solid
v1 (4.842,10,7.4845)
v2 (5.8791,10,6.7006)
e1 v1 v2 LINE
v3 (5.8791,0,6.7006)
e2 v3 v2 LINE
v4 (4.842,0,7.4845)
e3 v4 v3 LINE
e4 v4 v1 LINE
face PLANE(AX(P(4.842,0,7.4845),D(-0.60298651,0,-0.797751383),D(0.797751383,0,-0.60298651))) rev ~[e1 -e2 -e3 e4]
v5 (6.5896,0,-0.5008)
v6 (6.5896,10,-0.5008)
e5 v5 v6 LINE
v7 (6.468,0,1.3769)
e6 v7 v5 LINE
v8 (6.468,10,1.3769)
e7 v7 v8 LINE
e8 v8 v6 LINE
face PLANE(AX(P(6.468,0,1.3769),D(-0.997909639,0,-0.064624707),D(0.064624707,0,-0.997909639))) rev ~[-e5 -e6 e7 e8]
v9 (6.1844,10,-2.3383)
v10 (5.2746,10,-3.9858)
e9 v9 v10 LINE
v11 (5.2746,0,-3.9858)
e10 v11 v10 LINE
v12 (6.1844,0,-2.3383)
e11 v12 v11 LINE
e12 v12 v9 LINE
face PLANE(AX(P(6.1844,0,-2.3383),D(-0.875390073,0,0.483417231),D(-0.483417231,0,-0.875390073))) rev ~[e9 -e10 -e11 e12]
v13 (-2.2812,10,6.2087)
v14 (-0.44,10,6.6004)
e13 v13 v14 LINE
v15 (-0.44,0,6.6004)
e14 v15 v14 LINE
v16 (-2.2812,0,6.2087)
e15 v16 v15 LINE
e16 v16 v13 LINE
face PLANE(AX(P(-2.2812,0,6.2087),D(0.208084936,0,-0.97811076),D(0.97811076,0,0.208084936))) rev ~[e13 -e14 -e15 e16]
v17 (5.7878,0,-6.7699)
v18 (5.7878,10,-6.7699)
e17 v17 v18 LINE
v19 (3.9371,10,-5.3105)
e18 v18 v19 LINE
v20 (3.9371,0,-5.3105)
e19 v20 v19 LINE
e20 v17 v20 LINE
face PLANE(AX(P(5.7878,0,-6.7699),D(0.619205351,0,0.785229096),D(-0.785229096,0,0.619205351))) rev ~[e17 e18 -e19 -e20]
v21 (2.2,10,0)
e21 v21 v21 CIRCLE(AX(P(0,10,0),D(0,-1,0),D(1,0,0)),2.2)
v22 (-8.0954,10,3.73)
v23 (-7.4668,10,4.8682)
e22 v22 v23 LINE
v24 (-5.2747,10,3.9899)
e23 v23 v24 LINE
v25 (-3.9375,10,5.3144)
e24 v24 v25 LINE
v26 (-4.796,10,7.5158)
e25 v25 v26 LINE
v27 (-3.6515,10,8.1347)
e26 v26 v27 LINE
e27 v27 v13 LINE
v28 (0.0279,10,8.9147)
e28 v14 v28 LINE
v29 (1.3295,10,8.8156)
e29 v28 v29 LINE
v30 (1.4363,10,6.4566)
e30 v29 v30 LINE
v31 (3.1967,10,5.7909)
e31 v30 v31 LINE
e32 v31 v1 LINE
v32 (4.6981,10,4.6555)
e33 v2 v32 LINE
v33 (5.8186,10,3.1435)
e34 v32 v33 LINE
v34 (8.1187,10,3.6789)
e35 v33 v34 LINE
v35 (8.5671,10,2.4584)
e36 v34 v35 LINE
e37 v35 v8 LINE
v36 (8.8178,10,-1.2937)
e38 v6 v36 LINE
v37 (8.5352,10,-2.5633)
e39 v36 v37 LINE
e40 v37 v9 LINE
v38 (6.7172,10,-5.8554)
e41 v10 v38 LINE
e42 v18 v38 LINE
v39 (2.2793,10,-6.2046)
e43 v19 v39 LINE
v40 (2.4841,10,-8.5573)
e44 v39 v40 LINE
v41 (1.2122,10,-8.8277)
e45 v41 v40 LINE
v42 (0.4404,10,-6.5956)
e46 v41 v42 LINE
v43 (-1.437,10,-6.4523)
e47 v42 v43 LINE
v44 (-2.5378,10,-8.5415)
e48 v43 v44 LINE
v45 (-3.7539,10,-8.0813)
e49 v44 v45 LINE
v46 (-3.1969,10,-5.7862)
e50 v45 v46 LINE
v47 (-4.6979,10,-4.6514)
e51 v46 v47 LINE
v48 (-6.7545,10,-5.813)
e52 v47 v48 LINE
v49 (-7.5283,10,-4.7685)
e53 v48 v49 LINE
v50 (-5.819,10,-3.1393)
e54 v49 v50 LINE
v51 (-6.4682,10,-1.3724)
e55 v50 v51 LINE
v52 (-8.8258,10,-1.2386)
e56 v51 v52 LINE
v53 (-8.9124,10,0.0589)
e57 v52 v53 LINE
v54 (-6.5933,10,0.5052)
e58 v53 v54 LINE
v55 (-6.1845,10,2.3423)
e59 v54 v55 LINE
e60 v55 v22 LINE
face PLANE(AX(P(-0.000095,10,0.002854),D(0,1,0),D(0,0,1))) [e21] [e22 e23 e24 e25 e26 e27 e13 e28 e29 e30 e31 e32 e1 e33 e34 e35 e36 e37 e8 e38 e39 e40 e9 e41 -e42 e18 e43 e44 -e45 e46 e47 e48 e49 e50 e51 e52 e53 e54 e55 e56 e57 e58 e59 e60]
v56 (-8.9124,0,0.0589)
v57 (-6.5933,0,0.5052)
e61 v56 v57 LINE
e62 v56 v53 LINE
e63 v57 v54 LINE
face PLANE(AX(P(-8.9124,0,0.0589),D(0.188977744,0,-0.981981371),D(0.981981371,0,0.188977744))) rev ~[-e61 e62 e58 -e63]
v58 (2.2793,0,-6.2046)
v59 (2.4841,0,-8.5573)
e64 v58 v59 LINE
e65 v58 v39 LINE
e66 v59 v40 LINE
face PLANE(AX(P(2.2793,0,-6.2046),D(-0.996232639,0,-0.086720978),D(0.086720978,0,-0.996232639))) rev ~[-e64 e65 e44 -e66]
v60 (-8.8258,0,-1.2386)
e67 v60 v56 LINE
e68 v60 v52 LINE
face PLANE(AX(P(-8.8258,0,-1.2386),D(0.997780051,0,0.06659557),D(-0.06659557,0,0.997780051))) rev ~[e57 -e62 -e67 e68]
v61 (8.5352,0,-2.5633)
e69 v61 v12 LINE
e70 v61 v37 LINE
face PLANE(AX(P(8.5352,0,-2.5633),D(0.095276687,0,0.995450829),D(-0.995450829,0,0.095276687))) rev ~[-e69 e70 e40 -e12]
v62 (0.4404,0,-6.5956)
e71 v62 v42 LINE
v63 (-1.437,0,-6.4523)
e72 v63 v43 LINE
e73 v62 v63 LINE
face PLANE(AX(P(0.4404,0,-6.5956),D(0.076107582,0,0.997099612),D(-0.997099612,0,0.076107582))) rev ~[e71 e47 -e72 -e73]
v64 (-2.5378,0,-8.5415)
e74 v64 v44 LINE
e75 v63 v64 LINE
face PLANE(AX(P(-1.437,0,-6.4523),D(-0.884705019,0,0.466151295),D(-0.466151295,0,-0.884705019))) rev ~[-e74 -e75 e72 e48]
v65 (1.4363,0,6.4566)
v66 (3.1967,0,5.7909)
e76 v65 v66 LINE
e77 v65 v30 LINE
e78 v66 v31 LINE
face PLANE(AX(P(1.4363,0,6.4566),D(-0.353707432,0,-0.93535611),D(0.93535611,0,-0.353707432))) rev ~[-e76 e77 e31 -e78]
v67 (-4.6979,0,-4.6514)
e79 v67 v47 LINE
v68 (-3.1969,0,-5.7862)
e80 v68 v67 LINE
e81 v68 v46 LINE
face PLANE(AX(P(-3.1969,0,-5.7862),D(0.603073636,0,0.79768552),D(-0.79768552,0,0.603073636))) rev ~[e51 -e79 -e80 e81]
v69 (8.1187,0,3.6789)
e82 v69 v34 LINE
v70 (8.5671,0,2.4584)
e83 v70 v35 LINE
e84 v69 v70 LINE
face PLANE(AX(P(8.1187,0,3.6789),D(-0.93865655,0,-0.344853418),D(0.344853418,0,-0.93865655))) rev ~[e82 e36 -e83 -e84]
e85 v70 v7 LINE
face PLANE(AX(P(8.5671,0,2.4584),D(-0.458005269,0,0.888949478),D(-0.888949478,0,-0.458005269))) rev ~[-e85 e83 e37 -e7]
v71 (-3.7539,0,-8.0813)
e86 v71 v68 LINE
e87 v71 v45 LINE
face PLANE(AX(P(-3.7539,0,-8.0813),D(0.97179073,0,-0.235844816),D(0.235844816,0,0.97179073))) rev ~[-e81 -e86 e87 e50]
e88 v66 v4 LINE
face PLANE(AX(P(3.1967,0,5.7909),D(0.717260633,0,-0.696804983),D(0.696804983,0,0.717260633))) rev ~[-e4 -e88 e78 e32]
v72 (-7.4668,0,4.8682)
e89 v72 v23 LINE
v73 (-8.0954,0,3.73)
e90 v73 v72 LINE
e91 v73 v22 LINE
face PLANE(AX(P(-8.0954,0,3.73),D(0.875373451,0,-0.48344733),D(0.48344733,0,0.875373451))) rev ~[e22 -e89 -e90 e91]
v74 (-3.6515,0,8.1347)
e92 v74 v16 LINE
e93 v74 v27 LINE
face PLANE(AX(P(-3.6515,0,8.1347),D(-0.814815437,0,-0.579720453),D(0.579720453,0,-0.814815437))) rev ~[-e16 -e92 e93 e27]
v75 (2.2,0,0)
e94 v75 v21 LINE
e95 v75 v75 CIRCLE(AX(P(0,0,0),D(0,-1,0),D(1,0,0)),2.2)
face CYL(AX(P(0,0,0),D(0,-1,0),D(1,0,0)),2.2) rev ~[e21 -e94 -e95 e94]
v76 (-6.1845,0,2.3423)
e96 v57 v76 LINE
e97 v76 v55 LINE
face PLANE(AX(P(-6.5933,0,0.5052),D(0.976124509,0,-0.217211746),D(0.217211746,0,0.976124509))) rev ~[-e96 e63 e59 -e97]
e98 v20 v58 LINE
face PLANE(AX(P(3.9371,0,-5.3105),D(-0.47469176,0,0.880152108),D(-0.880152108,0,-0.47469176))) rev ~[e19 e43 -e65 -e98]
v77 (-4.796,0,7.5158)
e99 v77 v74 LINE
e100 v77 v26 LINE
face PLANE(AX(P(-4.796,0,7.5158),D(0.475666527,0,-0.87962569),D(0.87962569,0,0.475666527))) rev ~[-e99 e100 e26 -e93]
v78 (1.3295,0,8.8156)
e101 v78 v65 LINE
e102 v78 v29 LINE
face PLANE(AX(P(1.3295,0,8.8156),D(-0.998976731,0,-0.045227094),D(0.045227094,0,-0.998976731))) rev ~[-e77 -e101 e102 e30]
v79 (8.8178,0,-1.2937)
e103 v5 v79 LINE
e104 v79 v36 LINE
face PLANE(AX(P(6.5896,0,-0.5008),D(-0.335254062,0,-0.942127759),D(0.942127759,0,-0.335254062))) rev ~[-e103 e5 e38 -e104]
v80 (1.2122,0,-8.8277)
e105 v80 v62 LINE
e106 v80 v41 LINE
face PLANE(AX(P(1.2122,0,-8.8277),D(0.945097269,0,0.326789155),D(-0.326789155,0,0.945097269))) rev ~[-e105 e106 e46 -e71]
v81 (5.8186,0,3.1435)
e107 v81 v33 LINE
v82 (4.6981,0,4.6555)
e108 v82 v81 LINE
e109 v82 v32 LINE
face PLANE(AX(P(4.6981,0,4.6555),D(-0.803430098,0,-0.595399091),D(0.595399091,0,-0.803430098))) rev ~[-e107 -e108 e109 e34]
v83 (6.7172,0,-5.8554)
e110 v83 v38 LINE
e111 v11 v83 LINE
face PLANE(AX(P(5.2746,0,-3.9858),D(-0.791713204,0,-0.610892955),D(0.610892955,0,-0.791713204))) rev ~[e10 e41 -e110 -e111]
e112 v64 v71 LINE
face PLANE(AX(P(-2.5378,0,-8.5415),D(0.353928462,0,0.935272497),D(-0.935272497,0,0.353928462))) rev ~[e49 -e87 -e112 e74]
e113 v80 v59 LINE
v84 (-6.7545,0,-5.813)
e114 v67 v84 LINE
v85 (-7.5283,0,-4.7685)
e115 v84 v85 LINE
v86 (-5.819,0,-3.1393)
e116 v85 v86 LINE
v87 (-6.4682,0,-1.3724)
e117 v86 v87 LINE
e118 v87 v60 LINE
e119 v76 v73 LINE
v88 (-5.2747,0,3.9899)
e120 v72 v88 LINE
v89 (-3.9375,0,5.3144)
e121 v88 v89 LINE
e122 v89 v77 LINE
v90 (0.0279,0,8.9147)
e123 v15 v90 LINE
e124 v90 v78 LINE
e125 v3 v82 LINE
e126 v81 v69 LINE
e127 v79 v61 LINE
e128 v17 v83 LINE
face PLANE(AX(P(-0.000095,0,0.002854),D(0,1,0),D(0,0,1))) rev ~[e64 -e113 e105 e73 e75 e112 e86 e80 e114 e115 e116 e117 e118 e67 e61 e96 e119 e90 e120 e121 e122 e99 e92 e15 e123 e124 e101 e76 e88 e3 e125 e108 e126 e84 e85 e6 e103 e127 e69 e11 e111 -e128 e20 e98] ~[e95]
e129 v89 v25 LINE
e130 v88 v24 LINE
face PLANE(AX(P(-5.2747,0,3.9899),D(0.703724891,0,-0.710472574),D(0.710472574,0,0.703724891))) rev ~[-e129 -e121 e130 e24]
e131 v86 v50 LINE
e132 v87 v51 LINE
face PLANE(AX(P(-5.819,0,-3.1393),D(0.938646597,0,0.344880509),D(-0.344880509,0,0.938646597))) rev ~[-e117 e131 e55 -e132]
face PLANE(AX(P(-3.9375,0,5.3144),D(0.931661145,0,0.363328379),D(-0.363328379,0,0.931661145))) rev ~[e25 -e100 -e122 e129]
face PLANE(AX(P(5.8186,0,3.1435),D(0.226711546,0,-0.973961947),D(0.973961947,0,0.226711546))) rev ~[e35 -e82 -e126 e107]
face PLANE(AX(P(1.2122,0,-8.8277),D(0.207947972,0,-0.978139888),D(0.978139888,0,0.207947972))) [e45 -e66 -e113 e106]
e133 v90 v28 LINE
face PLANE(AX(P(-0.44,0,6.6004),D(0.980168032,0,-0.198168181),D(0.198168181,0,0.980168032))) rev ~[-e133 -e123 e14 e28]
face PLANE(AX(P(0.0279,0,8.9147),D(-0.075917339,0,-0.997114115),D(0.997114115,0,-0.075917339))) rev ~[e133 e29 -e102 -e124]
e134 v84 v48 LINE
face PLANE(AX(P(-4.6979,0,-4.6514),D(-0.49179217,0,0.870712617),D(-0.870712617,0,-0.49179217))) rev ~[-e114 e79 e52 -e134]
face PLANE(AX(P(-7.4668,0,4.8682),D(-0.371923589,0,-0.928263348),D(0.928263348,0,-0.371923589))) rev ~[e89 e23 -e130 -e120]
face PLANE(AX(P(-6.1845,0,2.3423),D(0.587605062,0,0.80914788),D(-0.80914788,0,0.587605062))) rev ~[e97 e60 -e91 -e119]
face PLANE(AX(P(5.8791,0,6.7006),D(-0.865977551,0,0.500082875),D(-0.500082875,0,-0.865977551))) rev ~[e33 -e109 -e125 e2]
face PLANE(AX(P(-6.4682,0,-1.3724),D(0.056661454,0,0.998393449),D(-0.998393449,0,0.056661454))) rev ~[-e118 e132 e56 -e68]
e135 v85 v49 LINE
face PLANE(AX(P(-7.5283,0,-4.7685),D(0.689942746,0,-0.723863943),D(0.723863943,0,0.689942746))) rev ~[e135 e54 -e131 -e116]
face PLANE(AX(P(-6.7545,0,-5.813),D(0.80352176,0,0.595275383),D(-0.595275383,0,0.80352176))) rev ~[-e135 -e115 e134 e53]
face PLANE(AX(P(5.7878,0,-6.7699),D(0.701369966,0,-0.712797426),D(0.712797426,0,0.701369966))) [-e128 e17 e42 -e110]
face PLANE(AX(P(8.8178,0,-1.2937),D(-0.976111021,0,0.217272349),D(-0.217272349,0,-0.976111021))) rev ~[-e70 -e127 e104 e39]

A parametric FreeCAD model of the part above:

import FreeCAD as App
import Part
import Sketcher

V = App.Vector
Q = App.Units.Quantity


def add_polygon(sketch, points):
    """Adds a closed chain of lines whose ends are joined by coincident constraints."""
    first, n = sketch.GeometryCount, len(points)
    for a, b in zip(points, points[1:] + points[:1]):
        sketch.addGeometry(Part.LineSegment(App.Vector(*a, 0), App.Vector(*b, 0)), False)
    for i in range(n):
        sketch.addConstraint(Sketcher.Constraint("Coincident", first + i, 2, first + (i + 1) % n, 1))

doc = App.newDocument("Part")
body = doc.addObject("PartDesign::Body", "Body")

# Sketch on XZ plane
sketch1 = body.newObject("Sketcher::SketchObject", "Sketch")
sketch1.AttachmentSupport = (doc.getObject("XZ_Plane"), [""])
sketch1.MapMode = "FlatFace"
add_polygon(sketch1, [(0.0279, 8.9147), (-0.44, 6.6004), (-2.2812, 6.2087), (-3.6515, 8.1347), (-4.796, 7.5158), (-3.9375, 5.3144), (-5.2747, 3.9899), (-7.4668, 4.8682), (-8.0954, 3.73), (-6.1845, 2.3423), (-6.5933, 0.5052), (-8.9124, 0.0589), (-8.8258, -1.2386), (-6.4682, -1.3724), (-5.819, -3.1393), (-7.5283, -4.7685), (-6.7545, -5.813), (-4.6979, -4.6514), (-3.1969, -5.7862), (-3.7539, -8.0813), (-2.5378, -8.5415), (-1.437, -6.4523), (0.4404, -6.5956), (1.2122, -8.8277), (2.4841, -8.5573), (2.2793, -6.2046), (3.9371, -5.3105), (5.7878, -6.7699), (6.7172, -5.8554), (5.2746, -3.9858), (6.1844, -2.3383), (8.5352, -2.5633), (8.8178, -1.2937), (6.5896, -0.5008), (6.468, 1.3769), (8.5671, 2.4584), (8.1187, 3.6789), (5.8186, 3.1435), (4.6981, 4.6555), (5.8791, 6.7006), (4.842, 7.4845), (3.1967, 5.7909), (1.4363, 6.4566), (1.3295, 8.8156)])  # lines 0-43
sketch1.addConstraint([
    Sketcher.Constraint("Distance", 15, Q("1.3 mm")),
    Sketcher.Constraint("Distance", 39, Q("1.3 mm")),
    Sketcher.Constraint("DistanceX", 36, 2, 35, 2, Q("2.3 mm")),
    Sketcher.Constraint("DistanceX", 0, 2, -1, 1, Q("0.44 mm")),
    Sketcher.Constraint("DistanceY", -1, 1, 5, 2, Q("3.99 mm")),
    Sketcher.Constraint("DistanceY", -1, 1, 7, 2, Q("3.73 mm")),
    Sketcher.Constraint("DistanceY", 26, 2, -1, 1, Q("6.77 mm")),
    Sketcher.Constraint("DistanceX", 14, 2, 12, 2, Q("1.06 mm")),
    Sketcher.Constraint("DistanceY", 14, 2, 11, 2, Q("3.53 mm")),
    Sketcher.Constraint("DistanceY", 18, 2, 16, 2, Q("3.43 mm")),
    Sketcher.Constraint("DistanceX", 16, 2, 19, 2, Q("2.16 mm")),
    Sketcher.Constraint("DistanceY", 19, 2, 16, 2, Q("3.89 mm")),
    Sketcher.Constraint("DistanceX", 17, 2, 20, 2, Q("1.76 mm")),
    Sketcher.Constraint("DistanceX", 19, 2, 22, 2, Q("3.75 mm")),
    Sketcher.Constraint("DistanceX", 25, 2, 27, 2, Q("2.78 mm")),
    Sketcher.Constraint("DistanceX", 26, 2, 31, 2, Q("3.03 mm")),
    Sketcher.Constraint("DistanceX", 37, 2, 33, 2, Q("1.77 mm")),
    Sketcher.Constraint("DistanceY", 2, 2, 43, 2, Q("0.78 mm")),
    Sketcher.Constraint("Distance", 9, Q("1.882 mm")),
    Sketcher.Constraint("Distance", 16, Q("2.362 mm")),
    Sketcher.Constraint("Distance", 26, Q("2.357 mm")),
    Sketcher.Constraint("Distance", 29, Q("1.882 mm")),
    Sketcher.Constraint("Distance", 32, Q("2.365 mm")),
    Sketcher.Constraint("Distance", 37, Q("1.882 mm")),
    Sketcher.Constraint("Distance", 41, Q("1.882 mm")),
    Sketcher.Constraint("DistanceX", 3, 2, -1, 1, Q("4.796 mm")),
    Sketcher.Constraint("DistanceY", -1, 1, 10, 2, Q("0.059 mm")),
    Sketcher.Constraint("DistanceX", 13, 2, -1, 1, Q("5.819 mm")),
    Sketcher.Constraint("DistanceY", 15, 2, -1, 1, Q("5.813 mm")),
    Sketcher.Constraint("DistanceX", 16, 2, -1, 1, Q("4.698 mm")),
    Sketcher.Constraint("DistanceX", 17, 2, -1, 1, Q("3.197 mm")),
    Sketcher.Constraint("DistanceX", 18, 2, -1, 1, Q("3.754 mm")),
    Sketcher.Constraint("DistanceX", -1, 1, 23, 2, Q("2.484 mm")),
    Sketcher.Constraint("DistanceX", -1, 1, 25, 2, Q("3.937 mm")),
    Sketcher.Constraint("DistanceX", -1, 1, 33, 2, Q("6.468 mm")),
    Sketcher.Constraint("DistanceY", -1, 1, 33, 2, Q("1.377 mm")),
    Sketcher.Constraint("DistanceX", -1, 1, 34, 2, Q("8.567 mm")),
    Sketcher.Constraint("DistanceY", -1, 1, 35, 2, Q("3.679 mm")),
    Sketcher.Constraint("DistanceX", -1, 1, 38, 2, Q("5.879 mm")),
    Sketcher.Constraint("DistanceX", -1, 1, 39, 2, Q("4.842 mm")),
    Sketcher.Constraint("DistanceY", -1, 1, 40, 2, Q("5.791 mm")),
    Sketcher.Constraint("DistanceX", -1, 1, 43, 2, Q("0.028 mm")),
    Sketcher.Constraint("DistanceY", 1, 2, 2, 2, Q("1.926 mm")),
    Sketcher.Constraint("DistanceY", 3, 2, 2, 2, Q("0.619 mm")),
    Sketcher.Constraint("DistanceX", 4, 2, 2, 2, Q("0.286 mm")),
    Sketcher.Constraint("DistanceY", 4, 2, 0, 2, Q("1.286 mm")),
    Sketcher.Constraint("DistanceY", 5, 2, 3, 2, Q("3.526 mm")),
    Sketcher.Constraint("DistanceX", 6, 2, 5, 2, Q("2.192 mm")),
    Sketcher.Constraint("DistanceX", 7, 2, 4, 2, Q("4.158 mm")),
    Sketcher.Constraint("DistanceX", 7, 2, 8, 2, Q("1.911 mm")),
    Sketcher.Constraint("DistanceY", 8, 2, 6, 2, Q("2.526 mm")),
    Sketcher.Constraint("DistanceY", 8, 2, 4, 2, Q("2.972 mm")),
    Sketcher.Constraint("DistanceY", 9, 2, 8, 2, Q("1.837 mm")),
    Sketcher.Constraint("DistanceX", 10, 2, 9, 2, Q("2.319 mm")),
    Sketcher.Constraint("DistanceY", 11, 2, 8, 2, Q("3.581 mm")),
    Sketcher.Constraint("DistanceX", 11, 2, 6, 2, Q("1.359 mm")),
    Sketcher.Constraint("DistanceX", 9, 2, 12, 2, Q("0.125 mm")),
    Sketcher.Constraint("DistanceY", 13, 2, 12, 2, Q("1.767 mm")),
    Sketcher.Constraint("DistanceY", 14, 2, 12, 2, Q("3.396 mm")),
    Sketcher.Constraint("DistanceX", 10, 2, 15, 2, Q("2.158 mm")),
    Sketcher.Constraint("DistanceY", 16, 2, 13, 2, Q("1.512 mm")),
    Sketcher.Constraint("DistanceX", 11, 2, 16, 2, Q("4.128 mm")),
    Sketcher.Constraint("DistanceY", 17, 2, 13, 2, Q("2.647 mm")),
    Sketcher.Constraint("DistanceY", 20, 2, 17, 2, Q("0.666 mm")),
    Sketcher.Constraint("DistanceY", 19, 2, 21, 2, Q("1.946 mm")),
    Sketcher.Constraint("DistanceY", 22, 2, 21, 2, Q("2.232 mm")),
    Sketcher.Constraint("DistanceY", 23, 2, 20, 2, Q("2.105 mm")),
    Sketcher.Constraint("DistanceX", 21, 2, 24, 2, Q("1.839 mm")),
    Sketcher.Constraint("DistanceY", 21, 2, 24, 2, Q("0.391 mm")),
    Sketcher.Constraint("DistanceX", 22, 2, 24, 2, Q("1.067 mm")),
    Sketcher.Constraint("DistanceY", 24, 2, 25, 2, Q("0.894 mm")),
    Sketcher.Constraint("DistanceY", 27, 2, 25, 2, Q("0.545 mm")),
    Sketcher.Constraint("DistanceY", 26, 2, 28, 2, Q("2.784 mm")),
    Sketcher.Constraint("DistanceY", 27, 2, 29, 2, Q("3.517 mm")),
    Sketcher.Constraint("DistanceX", 24, 2, 29, 2, Q("3.905 mm")),
    Sketcher.Constraint("DistanceY", 30, 2, 29, 2, Q("0.225 mm")),
    Sketcher.Constraint("DistanceX", 27, 2, 30, 2, Q("1.818 mm")),
    Sketcher.Constraint("DistanceY", 28, 2, 31, 2, Q("2.692 mm")),
    Sketcher.Constraint("DistanceY", 31, 2, 32, 2, Q("0.793 mm")),
    Sketcher.Constraint("DistanceY", 31, 2, 34, 2, Q("3.752 mm")),
    Sketcher.Constraint("DistanceX", 32, 2, 35, 2, Q("1.529 mm")),
    Sketcher.Constraint("DistanceY", 34, 2, 36, 2, Q("0.685 mm")),
    Sketcher.Constraint("DistanceY", 37, 2, 38, 2, Q("2.045 mm")),
    Sketcher.Constraint("DistanceX", 40, 2, 36, 2, Q("2.622 mm")),
    Sketcher.Constraint("DistanceY", 41, 2, 39, 2, Q("1.028 mm")),
    Sketcher.Constraint("DistanceY", 41, 2, 42, 2, Q("2.359 mm")),
    Sketcher.Constraint("DistanceX", 1, 2, 43, 2, Q("2.309 mm")),
    Sketcher.Constraint("Distance", 42, Q("2.3614 mm")),
])
pad1 = body.newObject("PartDesign::Pad", "Pad")
pad1.Profile = sketch1
pad1.Length = 10
pad1.Reversed = True

# Sketch on XZ plane
sketch2 = body.newObject("Sketcher::SketchObject", "Sketch001")
sketch2.AttachmentSupport = (doc.getObject("XZ_Plane"), [""])
sketch2.MapMode = "FlatFace"
sketch2.addGeometry(Part.Circle(V(0, 0, 0), V(0, 0, 1), 2.2), False)
sketch2.addConstraint([
    Sketcher.Constraint("Coincident", 0, 3, -1, 1),
    Sketcher.Constraint("Diameter", 0, Q("4.4 mm")),
])
pocket1 = body.newObject("PartDesign::Pocket", "Pocket")
pocket1.Profile = sketch2
pocket1.Length = 1588.2379

doc.recompute()
